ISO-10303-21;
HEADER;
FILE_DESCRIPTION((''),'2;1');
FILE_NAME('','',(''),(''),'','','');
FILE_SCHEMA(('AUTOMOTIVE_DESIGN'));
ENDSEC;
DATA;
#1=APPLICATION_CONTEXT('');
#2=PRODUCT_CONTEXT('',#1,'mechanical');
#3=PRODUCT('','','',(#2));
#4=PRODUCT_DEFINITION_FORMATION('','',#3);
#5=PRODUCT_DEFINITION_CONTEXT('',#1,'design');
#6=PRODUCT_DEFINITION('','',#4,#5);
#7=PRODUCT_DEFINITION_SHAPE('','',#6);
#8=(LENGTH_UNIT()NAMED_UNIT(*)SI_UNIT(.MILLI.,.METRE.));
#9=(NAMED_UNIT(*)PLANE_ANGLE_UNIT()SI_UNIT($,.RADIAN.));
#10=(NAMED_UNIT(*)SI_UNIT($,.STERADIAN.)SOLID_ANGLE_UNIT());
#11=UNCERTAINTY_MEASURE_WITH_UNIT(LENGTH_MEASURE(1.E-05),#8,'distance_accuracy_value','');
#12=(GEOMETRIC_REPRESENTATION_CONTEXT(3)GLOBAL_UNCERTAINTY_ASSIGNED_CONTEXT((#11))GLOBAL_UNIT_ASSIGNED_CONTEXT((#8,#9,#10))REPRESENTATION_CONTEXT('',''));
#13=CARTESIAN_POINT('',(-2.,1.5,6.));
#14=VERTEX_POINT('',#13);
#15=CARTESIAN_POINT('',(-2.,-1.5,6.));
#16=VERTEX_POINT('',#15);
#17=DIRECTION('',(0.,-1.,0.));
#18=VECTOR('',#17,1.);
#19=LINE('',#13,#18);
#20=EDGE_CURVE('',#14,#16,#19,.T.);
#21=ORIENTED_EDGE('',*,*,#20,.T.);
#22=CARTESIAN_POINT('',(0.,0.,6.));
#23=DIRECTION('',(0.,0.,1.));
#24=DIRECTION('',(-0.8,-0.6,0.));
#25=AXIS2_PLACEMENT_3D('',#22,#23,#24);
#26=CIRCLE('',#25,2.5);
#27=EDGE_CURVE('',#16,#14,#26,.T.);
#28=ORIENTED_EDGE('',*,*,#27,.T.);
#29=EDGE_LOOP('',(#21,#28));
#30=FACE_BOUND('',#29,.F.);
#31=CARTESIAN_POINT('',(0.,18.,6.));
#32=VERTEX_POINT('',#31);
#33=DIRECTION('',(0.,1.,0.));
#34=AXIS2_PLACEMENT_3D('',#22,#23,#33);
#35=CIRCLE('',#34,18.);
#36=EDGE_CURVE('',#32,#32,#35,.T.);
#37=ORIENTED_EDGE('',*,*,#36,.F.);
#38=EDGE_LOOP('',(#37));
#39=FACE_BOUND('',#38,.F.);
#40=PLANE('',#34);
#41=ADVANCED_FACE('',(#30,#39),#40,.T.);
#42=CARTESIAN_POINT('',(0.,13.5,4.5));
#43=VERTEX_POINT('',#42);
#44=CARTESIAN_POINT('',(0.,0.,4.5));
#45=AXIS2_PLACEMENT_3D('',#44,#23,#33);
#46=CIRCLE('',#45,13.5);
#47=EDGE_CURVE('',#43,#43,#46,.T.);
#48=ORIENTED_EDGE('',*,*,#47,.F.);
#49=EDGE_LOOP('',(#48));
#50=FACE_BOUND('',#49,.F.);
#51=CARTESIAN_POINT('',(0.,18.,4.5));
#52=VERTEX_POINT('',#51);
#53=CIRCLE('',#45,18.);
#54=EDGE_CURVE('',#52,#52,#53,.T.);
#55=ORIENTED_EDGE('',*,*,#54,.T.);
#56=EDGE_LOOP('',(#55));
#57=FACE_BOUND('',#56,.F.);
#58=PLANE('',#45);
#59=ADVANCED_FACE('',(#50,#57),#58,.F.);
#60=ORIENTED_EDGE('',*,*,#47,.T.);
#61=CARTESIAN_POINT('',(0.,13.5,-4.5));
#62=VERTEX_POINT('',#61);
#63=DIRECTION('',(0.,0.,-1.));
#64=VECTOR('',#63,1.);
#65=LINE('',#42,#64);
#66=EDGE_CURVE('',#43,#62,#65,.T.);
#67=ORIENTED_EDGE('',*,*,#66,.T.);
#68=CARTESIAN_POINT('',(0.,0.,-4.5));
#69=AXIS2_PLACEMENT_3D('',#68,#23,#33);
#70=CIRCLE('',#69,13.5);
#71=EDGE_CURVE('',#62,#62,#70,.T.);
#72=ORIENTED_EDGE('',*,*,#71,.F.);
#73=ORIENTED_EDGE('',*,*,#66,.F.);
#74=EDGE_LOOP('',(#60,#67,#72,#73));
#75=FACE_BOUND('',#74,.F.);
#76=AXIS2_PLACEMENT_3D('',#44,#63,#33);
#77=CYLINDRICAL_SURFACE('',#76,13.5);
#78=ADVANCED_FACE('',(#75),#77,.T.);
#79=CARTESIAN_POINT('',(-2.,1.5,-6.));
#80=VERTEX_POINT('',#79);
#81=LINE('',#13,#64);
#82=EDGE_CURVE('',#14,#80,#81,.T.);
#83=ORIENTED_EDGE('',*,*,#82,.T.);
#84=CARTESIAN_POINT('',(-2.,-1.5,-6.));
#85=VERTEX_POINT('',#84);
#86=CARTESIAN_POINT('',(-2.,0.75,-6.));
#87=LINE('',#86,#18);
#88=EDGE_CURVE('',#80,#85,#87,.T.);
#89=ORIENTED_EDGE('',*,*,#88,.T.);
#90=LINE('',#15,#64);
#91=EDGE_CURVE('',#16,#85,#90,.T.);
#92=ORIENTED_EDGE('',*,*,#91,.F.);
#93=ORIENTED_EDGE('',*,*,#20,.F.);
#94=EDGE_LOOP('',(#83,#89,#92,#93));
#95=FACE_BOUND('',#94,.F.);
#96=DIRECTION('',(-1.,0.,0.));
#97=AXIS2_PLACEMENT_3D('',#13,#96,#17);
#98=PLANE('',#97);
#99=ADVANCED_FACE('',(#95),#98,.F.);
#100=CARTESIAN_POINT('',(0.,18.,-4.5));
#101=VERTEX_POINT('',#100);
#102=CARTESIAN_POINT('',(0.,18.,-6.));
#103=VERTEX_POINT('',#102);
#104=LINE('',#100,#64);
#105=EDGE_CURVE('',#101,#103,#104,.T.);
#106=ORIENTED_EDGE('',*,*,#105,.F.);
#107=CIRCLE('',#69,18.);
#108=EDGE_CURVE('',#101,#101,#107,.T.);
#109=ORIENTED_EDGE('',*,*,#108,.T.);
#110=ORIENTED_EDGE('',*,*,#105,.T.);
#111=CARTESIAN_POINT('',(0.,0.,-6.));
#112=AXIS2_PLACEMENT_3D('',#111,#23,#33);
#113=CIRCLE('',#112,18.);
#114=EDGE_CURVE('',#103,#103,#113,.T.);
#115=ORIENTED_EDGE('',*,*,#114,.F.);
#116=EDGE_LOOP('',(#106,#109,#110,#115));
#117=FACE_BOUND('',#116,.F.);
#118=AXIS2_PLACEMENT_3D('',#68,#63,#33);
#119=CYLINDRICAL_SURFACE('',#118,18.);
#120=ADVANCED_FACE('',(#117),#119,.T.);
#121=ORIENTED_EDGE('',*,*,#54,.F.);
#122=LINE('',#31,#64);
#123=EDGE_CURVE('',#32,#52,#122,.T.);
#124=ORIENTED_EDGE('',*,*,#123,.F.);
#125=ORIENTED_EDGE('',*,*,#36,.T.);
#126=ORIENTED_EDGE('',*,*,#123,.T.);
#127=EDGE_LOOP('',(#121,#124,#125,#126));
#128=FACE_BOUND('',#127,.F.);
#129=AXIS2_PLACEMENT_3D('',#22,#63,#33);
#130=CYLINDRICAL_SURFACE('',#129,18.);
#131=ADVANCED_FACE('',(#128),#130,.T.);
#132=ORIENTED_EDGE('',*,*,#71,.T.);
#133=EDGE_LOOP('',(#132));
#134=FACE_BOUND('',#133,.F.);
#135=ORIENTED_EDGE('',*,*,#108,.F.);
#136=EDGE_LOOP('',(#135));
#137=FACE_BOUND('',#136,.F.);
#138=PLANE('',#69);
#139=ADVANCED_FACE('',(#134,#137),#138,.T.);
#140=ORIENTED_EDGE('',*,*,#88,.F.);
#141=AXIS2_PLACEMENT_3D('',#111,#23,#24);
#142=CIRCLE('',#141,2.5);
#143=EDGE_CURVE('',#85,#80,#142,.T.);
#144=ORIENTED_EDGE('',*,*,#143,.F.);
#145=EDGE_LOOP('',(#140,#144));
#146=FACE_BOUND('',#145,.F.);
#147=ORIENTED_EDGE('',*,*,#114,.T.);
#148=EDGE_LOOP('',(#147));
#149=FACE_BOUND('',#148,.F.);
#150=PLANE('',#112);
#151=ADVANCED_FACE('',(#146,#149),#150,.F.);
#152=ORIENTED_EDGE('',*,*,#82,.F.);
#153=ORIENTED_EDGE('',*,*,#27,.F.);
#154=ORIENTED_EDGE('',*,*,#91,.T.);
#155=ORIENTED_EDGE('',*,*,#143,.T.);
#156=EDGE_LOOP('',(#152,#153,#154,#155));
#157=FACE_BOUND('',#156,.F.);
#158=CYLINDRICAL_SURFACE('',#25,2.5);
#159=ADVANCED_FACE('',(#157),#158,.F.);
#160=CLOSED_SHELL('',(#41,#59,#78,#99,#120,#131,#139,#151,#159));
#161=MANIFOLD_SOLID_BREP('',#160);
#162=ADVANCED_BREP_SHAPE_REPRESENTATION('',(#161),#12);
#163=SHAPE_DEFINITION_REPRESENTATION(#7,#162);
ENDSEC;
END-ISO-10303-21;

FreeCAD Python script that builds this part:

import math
import FreeCAD as App
import Part
import Sketcher
Q = App.Units.Quantity


def add_polygon(sketch, points):
    """Adds a closed chain of lines whose ends are joined by coincident constraints."""
    first, n = sketch.GeometryCount, len(points)
    for a, b in zip(points, points[1:] + points[:1]):
        sketch.addGeometry(Part.LineSegment(App.Vector(*a, 0), App.Vector(*b, 0)), False)
    for i in range(n):
        sketch.addConstraint(Sketcher.Constraint("Coincident", first + i, 2, first + (i + 1) % n, 1))

doc = App.newDocument("Part")
params = doc.addObject("Spreadsheet::Sheet", "Params")
for row, (alias, value) in enumerate([
    ("sketch1_width", "18 mm"),
    ("sketch1_height", "12 mm"),
    ("sketch1_width2", "4.5 mm"),
    ("sketch1_height2", "1.5 mm"),
    ("revolution_angle", "360 deg"),
    ("sketch2_radius", "2.5 mm"),
    ("sketch2_height", "3 mm"),
], start=1):
    params.set(f"A{row}", alias)
    params.set(f"B{row}", "=" + value)
    params.setAlias(f"B{row}", alias)

body = doc.addObject("PartDesign::Body", "Body")

# Sketch on YZ plane
sketch1 = doc.addObject("Sketcher::SketchObject", "Sketch")
body.addObject(sketch1)
sketch1.AttachmentSupport = (doc.YZ_Plane, [""])
sketch1.MapMode = "FlatFace"
add_polygon(sketch1, [(18, 6), (0, 6), (0, -6), (18, -6), (18, -4.5), (13.5, -4.5), (13.5, 4.5), (18, 4.5)])  # lines 0-7
sketch1.addConstraint([
    Sketcher.Constraint("Horizontal", 0),
    Sketcher.Constraint("Vertical", 1),
    Sketcher.Constraint("Horizontal", 2),
    Sketcher.Constraint("Vertical", 3),
    Sketcher.Constraint("Horizontal", 4),
    Sketcher.Constraint("Vertical", 5),
    Sketcher.Constraint("Horizontal", 6),
    Sketcher.Constraint("Vertical", 7),
    Sketcher.Constraint("Symmetric", 0, 2, 1, 2, -1, 1),
    Sketcher.Constraint("Symmetric", 3, 2, 6, 2, -1),
    Sketcher.Constraint("DistanceX", 0, 2, 0, 1, Q("18 mm")),
    Sketcher.Constraint("DistanceY", 1, 2, 1, 1, Q("12 mm")),
    Sketcher.Constraint("DistanceX", 4, 2, 4, 1, Q("4.5 mm")),
    Sketcher.Constraint("DistanceY", 3, 1, 3, 2, Q("1.5 mm")),
])
sketch1.setExpression("Constraints[18]", "Params.sketch1_width")
sketch1.setExpression("Constraints[19]", "Params.sketch1_height")
sketch1.setExpression("Constraints[20]", "Params.sketch1_width2")
sketch1.setExpression("Constraints[21]", "Params.sketch1_height2")
revolution = doc.addObject("PartDesign::Revolution", "Revolution")
body.addObject(revolution)
revolution.Profile = sketch1
revolution.ReferenceAxis = (sketch1, ["V_Axis"])
revolution.setExpression("Angle", "Params.revolution_angle")

# Sketch on XY plane
sketch2 = doc.addObject("Sketcher::SketchObject", "Sketch001")
body.addObject(sketch2)
sketch2.AttachmentSupport = (doc.XY_Plane, [""])
sketch2.MapMode = "FlatFace"
sketch2.AttachmentOffset = App.Placement(App.Vector(0, 0, 6), App.Rotation())
sketch2.addGeometry([
    Part.LineSegment(App.Vector(-2, 1.5, 0), App.Vector(-2, -1.5, 0)),
    Part.ArcOfCircle(Part.Circle(App.Vector(0, 0, 0), App.Vector(0, 0, 1), 2.5), math.radians(-143), math.radians(143)),
], False)
sketch2.addConstraint([
    Sketcher.Constraint("Coincident", 0, 1, 1, 2),
    Sketcher.Constraint("Coincident", 1, 1, 0, 2),
    Sketcher.Constraint("Vertical", 0),
    Sketcher.Constraint("Coincident", 1, 3, -1, 1),
    Sketcher.Constraint("Radius", 1, Q("2.5 mm")),
    Sketcher.Constraint("DistanceY", 0, 2, 0, 1, Q("3 mm")),
])
sketch2.setExpression("Constraints[4]", "Params.sketch2_radius")
sketch2.setExpression("Constraints[5]", "Params.sketch2_height")
pocket1 = doc.addObject("PartDesign::Pocket", "Pocket")
body.addObject(pocket1)
pocket1.Profile = sketch2
pocket1.Type = "ThroughAll"

doc.recompute()
